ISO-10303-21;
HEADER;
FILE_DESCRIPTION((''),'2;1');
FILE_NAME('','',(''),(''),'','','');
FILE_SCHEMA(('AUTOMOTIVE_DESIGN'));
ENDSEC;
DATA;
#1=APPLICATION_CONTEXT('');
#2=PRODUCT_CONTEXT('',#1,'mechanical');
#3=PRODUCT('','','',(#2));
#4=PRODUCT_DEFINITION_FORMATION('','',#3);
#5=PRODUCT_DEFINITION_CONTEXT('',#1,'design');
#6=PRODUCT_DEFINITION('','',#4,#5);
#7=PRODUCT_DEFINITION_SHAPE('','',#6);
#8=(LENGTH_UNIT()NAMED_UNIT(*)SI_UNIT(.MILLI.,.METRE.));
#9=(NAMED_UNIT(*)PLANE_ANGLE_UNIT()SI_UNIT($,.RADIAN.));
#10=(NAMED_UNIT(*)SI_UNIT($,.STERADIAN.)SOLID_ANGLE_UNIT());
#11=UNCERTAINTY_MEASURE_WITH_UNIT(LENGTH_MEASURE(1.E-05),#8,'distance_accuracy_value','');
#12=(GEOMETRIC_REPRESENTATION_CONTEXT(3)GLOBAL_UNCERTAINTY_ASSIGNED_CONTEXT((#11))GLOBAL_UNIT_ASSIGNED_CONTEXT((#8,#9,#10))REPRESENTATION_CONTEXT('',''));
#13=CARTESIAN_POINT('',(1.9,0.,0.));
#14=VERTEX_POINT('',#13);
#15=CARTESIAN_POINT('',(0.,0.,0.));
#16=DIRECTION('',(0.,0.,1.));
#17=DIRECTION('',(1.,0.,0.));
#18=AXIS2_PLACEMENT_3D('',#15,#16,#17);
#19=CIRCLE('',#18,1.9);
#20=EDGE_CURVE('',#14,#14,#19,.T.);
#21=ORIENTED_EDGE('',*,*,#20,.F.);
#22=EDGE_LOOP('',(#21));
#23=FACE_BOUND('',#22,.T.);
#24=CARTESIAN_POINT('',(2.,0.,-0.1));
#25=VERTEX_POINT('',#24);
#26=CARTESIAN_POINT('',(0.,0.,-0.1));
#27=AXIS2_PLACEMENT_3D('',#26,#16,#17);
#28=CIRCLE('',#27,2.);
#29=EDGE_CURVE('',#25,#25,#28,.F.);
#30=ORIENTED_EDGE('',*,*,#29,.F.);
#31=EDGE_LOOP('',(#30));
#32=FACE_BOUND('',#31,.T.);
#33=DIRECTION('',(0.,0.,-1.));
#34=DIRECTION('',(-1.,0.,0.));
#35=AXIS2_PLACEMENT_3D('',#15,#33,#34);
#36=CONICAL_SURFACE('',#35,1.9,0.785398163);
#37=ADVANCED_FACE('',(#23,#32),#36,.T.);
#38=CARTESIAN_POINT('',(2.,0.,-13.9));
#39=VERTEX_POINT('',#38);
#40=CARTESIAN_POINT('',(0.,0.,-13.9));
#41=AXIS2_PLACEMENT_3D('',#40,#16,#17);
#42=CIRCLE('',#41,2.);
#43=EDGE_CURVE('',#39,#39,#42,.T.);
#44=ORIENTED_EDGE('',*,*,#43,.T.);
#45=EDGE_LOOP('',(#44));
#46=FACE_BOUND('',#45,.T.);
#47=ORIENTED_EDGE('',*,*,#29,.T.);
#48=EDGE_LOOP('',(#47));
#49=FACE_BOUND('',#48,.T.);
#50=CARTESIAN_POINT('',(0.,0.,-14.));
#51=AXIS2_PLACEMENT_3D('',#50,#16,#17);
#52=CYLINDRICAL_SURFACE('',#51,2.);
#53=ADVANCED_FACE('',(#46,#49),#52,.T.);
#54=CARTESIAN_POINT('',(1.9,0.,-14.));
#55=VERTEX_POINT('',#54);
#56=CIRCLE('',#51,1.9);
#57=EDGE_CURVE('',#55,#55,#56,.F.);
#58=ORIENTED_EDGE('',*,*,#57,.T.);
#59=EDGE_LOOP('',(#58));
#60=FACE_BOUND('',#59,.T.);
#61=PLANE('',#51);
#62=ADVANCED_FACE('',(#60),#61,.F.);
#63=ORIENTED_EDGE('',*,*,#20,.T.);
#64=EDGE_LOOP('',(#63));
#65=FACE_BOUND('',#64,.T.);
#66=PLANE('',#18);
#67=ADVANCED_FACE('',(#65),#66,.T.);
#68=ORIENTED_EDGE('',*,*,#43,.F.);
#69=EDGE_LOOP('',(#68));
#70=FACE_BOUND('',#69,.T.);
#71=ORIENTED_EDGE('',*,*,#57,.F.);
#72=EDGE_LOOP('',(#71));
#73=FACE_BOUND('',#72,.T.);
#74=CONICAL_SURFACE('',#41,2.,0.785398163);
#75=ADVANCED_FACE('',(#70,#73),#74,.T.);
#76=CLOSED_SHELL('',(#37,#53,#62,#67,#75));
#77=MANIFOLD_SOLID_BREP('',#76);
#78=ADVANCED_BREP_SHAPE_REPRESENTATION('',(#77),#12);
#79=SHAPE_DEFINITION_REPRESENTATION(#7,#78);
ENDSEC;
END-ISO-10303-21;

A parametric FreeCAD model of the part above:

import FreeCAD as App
import Part
import Sketcher


def edges_at(feature, points):
    """Names of the edges that pass closest to the given points."""
    edges = feature.Shape.Edges
    near = lambda p: min(range(len(edges)), key=lambda i: edges[i].distToShape(Part.Vertex(*p))[0])
    return sorted({f"Edge{near(p) + 1}" for p in points})

doc = App.newDocument("Part")
body = doc.addObject("PartDesign::Body", "Body")

sketch1 = doc.addObject("Sketcher::SketchObject", "Sketch")
body.addObject(sketch1)
sketch1.AttachmentSupport = (doc.XY_Plane, [""])
sketch1.MapMode = "FlatFace"
sketch1.addGeometry(Part.Circle(App.Vector(0, 0, 0), App.Vector(0, 0, 1), 2), False)
sketch1.addConstraint(Sketcher.Constraint("Coincident", 0, 3, -1, 1))
sketch1.addConstraint(Sketcher.Constraint("Diameter", 0, 4.0))
pad1 = doc.addObject("PartDesign::Pad", "Pad")
body.addObject(pad1)
pad1.Profile = sketch1
pad1.Length = 14
pad1.Reversed = True
doc.recompute()

chamfer = doc.addObject("PartDesign::Chamfer", "Chamfer")
body.addObject(chamfer)
chamfer.Base = (pad1, edges_at(pad1, [(-2, 0, 0), (-2, 0, -14)]))
chamfer.Size = 0.1

doc.recompute()
